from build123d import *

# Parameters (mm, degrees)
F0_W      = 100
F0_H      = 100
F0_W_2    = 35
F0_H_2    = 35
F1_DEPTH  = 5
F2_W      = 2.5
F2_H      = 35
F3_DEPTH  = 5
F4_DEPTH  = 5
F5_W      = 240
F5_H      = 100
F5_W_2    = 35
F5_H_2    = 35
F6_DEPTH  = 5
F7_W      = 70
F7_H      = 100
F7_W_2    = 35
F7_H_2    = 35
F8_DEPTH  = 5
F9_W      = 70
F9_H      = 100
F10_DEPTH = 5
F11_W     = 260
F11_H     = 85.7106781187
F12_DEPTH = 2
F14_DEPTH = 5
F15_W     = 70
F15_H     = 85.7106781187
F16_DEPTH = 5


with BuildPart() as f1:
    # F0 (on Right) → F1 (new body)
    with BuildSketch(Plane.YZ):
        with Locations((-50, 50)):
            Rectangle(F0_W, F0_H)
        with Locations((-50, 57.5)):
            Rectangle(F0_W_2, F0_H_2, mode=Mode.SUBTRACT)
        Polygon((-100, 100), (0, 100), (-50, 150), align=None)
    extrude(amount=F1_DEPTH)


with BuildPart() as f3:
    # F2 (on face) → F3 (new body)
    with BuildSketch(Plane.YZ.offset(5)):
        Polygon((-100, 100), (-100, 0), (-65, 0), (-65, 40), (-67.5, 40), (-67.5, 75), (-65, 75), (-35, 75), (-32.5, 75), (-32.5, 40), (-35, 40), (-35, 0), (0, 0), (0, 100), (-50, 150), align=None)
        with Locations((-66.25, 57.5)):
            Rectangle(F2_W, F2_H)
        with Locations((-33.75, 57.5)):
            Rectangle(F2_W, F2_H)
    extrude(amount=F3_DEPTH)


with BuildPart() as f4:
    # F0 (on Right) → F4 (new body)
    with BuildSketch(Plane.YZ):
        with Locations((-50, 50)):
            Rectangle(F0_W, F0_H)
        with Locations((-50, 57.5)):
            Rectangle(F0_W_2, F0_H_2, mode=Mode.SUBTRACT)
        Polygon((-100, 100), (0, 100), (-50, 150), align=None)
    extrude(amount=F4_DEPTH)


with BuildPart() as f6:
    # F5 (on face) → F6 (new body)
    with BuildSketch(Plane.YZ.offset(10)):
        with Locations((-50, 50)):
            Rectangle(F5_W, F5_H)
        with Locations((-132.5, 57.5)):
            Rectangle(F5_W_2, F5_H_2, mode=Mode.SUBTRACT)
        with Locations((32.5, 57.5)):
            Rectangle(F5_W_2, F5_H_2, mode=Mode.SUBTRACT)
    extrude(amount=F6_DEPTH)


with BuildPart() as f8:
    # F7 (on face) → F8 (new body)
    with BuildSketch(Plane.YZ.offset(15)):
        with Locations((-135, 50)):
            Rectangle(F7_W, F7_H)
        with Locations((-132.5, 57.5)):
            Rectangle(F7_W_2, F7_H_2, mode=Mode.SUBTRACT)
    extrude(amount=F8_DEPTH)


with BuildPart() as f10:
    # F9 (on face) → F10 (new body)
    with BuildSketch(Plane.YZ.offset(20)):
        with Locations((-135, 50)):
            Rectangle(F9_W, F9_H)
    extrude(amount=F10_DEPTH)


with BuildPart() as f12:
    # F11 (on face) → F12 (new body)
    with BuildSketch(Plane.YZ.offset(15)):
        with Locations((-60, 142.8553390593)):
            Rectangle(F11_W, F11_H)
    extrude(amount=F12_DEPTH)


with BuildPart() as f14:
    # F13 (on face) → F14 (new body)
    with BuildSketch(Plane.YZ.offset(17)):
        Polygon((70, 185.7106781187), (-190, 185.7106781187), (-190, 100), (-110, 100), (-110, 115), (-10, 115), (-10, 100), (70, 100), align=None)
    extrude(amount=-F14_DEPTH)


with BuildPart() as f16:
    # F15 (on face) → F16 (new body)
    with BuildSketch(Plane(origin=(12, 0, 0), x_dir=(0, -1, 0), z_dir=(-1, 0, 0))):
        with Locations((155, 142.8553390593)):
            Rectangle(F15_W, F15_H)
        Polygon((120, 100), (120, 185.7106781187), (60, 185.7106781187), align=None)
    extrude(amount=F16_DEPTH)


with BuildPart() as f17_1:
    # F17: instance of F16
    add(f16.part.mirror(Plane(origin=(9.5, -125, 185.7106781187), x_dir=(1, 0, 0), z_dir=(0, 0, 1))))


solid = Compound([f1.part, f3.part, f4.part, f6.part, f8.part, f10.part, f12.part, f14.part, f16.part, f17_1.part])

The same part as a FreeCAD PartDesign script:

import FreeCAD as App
import Part
import Sketcher

V = App.Vector
Q = App.Units.Quantity


def add_polygon(sketch, points):
    """Adds a closed chain of lines whose ends are joined by coincident constraints."""
    first, n = sketch.GeometryCount, len(points)
    for a, b in zip(points, points[1:] + points[:1]):
        sketch.addGeometry(Part.LineSegment(App.Vector(*a, 0), App.Vector(*b, 0)), False)
    for i in range(n):
        sketch.addConstraint(Sketcher.Constraint("Coincident", first + i, 2, first + (i + 1) % n, 1))

doc = App.newDocument("Part")
params = doc.addObject("Spreadsheet::Sheet", "Params")
for row, (alias, value) in enumerate([
    ("sketch1_width", "100 mm"),
    ("sketch1_width2", "35 mm"),
    ("pad1_length", "5 mm"),
    ("sketch2_width", "35 mm"),
    ("sketch2_width2", "30 mm"),
    ("sketch2_height", "100 mm"),
    ("sketch2_height2", "75 mm"),
    ("pad2_length", "5 mm"),
    ("sketch3_width", "100 mm"),
    ("sketch3_width2", "35 mm"),
    ("pad3_length", "5 mm"),
    ("sketch4_width", "240 mm"),
    ("sketch4_width2", "35 mm"),
    ("sketch4_height", "100 mm"),
    ("pad4_length", "5 mm"),
    ("sketch5_width", "70 mm"),
    ("sketch5_width2", "35 mm"),
    ("sketch5_height", "100 mm"),
    ("pad5_length", "5 mm"),
    ("sketch6_width", "70 mm"),
    ("sketch6_height", "100 mm"),
    ("pad6_length", "5 mm"),
    ("sketch7_width", "260 mm"),
    ("pad7_length", "2 mm"),
    ("sketch8_width", "260 mm"),
    ("sketch8_width2", "80 mm"),
    ("sketch8_height", "15 mm"),
    ("pad8_length", "5 mm"),
    ("sketch9_width", "70 mm"),
    ("sketch9_width2", "130 mm"),
    ("pad9_length", "5 mm"),
], start=1):
    params.set(f"A{row}", alias)
    params.set(f"B{row}", "=" + value)
    params.setAlias(f"B{row}", alias)

body = doc.addObject("PartDesign::Body", "Body")

sketch1 = doc.addObject("Sketcher::SketchObject", "Sketch")
body.addObject(sketch1)
sketch1.AttachmentSupport = (doc.YZ_Plane, [""])
sketch1.MapMode = "FlatFace"
add_polygon(sketch1, [(-100, 100), (-100, 0), (0, 0), (0, 100), (-50, 150)])
add_polygon(sketch1, [(-32, 40), (-68, 40), (-68, 75), (-32, 75)])
sketch1.addConstraint([
    Sketcher.Constraint("Vertical", 0),
    Sketcher.Constraint("Horizontal", 1),
    Sketcher.Constraint("Vertical", 2),
    Sketcher.Constraint("Horizontal", 5),
    Sketcher.Constraint("Vertical", 6),
    Sketcher.Constraint("Horizontal", 7),
    Sketcher.Constraint("Vertical", 8),
    Sketcher.Constraint("Coincident", 1, 2, -1, 1),
    Sketcher.Constraint("Perpendicular", 3, 4),
    Sketcher.Constraint("Horizontal", 2, 2, 4, 2),
    Sketcher.Constraint("Equal", 1, 0),
    Sketcher.Constraint("Equal", 7, 6),
    Sketcher.Constraint("Equal", 3, 4),
    Sketcher.Constraint("DistanceX", 1, 1, 1, 2, Q("100 mm")),
    Sketcher.Constraint("DistanceX", 5, 2, 5, 1, Q("35 mm")),
    Sketcher.Constraint("DistanceY", -1, 1, 5, 2, Q("40 mm")),
    Sketcher.Constraint("DistanceX", 5, 2, -1, 1, Q("67.5 mm")),
])
sketch1.setExpression("Constraints[22]", "Params.sketch1_width")
sketch1.setExpression("Constraints[23]", "Params.sketch1_width2")
pad1 = doc.addObject("PartDesign::Pad", "Pad")
body.addObject(pad1)
pad1.Profile = sketch1
pad1.setExpression("Length", "Params.pad1_length")
body2 = doc.addObject("PartDesign::Body", "Body001")

sketch2 = doc.addObject("Sketcher::SketchObject", "Sketch001")
body2.addObject(sketch2)
sketch2.AttachmentSupport = (doc.getObject("YZ_Plane001"), [""])
sketch2.MapMode = "FlatFace"
sketch2.AttachmentOffset = App.Placement(V(0, 0, 5), App.Rotation())
add_polygon(sketch2, [(-100, 100), (-100, 0), (-65, 0), (-65, 75), (-35, 75), (-35, 0), (0, 0), (0, 100), (-50, 150)])
sketch2.addConstraint([
    Sketcher.Constraint("Vertical", 0),
    Sketcher.Constraint("Horizontal", 1),
    Sketcher.Constraint("Vertical", 2),
    Sketcher.Constraint("Horizontal", 3),
    Sketcher.Constraint("Vertical", 4),
    Sketcher.Constraint("Horizontal", 5),
    Sketcher.Constraint("Vertical", 6),
    Sketcher.Constraint("Coincident", 5, 2, -1, 1),
    Sketcher.Constraint("PointOnObject", 0, 2, -1),
    Sketcher.Constraint("Perpendicular", 7, 8),
    Sketcher.Constraint("Horizontal", 6, 2, 8, 2),
    Sketcher.Constraint("Equal", 1, 5),
    Sketcher.Constraint("Equal", 7, 8),
    Sketcher.Constraint("DistanceX", 1, 1, 1, 2, Q("35 mm")),
    Sketcher.Constraint("DistanceX", 3, 1, 3, 2, Q("30 mm")),
    Sketcher.Constraint("DistanceY", 0, 2, 0, 1, Q("100 mm")),
    Sketcher.Constraint("DistanceY", 2, 1, 2, 2, Q("75 mm")),
])
sketch2.setExpression("Constraints[22]", "Params.sketch2_width")
sketch2.setExpression("Constraints[23]", "Params.sketch2_width2")
sketch2.setExpression("Constraints[24]", "Params.sketch2_height")
sketch2.setExpression("Constraints[25]", "Params.sketch2_height2")
pad2 = doc.addObject("PartDesign::Pad", "Pad001")
body2.addObject(pad2)
pad2.Profile = sketch2
pad2.setExpression("Length", "Params.pad2_length")
body3 = doc.addObject("PartDesign::Body", "Body002")

sketch3 = doc.addObject("Sketcher::SketchObject", "Sketch002")
body3.addObject(sketch3)
sketch3.AttachmentSupport = (doc.getObject("YZ_Plane002"), [""])
sketch3.MapMode = "FlatFace"
add_polygon(sketch3, [(-100, 100), (-100, 0), (0, 0), (0, 100), (-50, 150)])
add_polygon(sketch3, [(-32, 40), (-68, 40), (-68, 75), (-32, 75)])
sketch3.addConstraint([
    Sketcher.Constraint("Vertical", 0),
    Sketcher.Constraint("Horizontal", 1),
    Sketcher.Constraint("Vertical", 2),
    Sketcher.Constraint("Horizontal", 5),
    Sketcher.Constraint("Vertical", 6),
    Sketcher.Constraint("Horizontal", 7),
    Sketcher.Constraint("Vertical", 8),
    Sketcher.Constraint("Coincident", 1, 2, -1, 1),
    Sketcher.Constraint("Perpendicular", 3, 4),
    Sketcher.Constraint("Horizontal", 2, 2, 4, 2),
    Sketcher.Constraint("Equal", 1, 0),
    Sketcher.Constraint("Equal", 7, 6),
    Sketcher.Constraint("Equal", 3, 4),
    Sketcher.Constraint("DistanceX", 1, 1, 1, 2, Q("100 mm")),
    Sketcher.Constraint("DistanceX", 5, 2, 5, 1, Q("35 mm")),
    Sketcher.Constraint("DistanceY", -1, 1, 5, 2, Q("40 mm")),
    Sketcher.Constraint("DistanceX", 5, 2, -1, 1, Q("67.5 mm")),
])
sketch3.setExpression("Constraints[22]", "Params.sketch3_width")
sketch3.setExpression("Constraints[23]", "Params.sketch3_width2")
pad3 = doc.addObject("PartDesign::Pad", "Pad002")
body3.addObject(pad3)
pad3.Profile = sketch3
pad3.setExpression("Length", "Params.pad3_length")
body4 = doc.addObject("PartDesign::Body", "Body003")

sketch4 = doc.addObject("Sketcher::SketchObject", "Sketch003")
body4.addObject(sketch4)
sketch4.AttachmentSupport = (doc.getObject("YZ_Plane003"), [""])
sketch4.MapMode = "FlatFace"
sketch4.AttachmentOffset = App.Placement(V(0, 0, 10), App.Rotation())
add_polygon(sketch4, [(-170, 100), (-170, 0), (70, 0), (70, 100)])
add_polygon(sketch4, [(-115, 40), (-150, 40), (-150, 75), (-115, 75)])
add_polygon(sketch4, [(50, 40), (15, 40), (15, 75), (50, 75)])
sketch4.addConstraint([
    Sketcher.Constraint("Vertical", 0),
    Sketcher.Constraint("Horizontal", 1),
    Sketcher.Constraint("Vertical", 2),
    Sketcher.Constraint("Horizontal", 3),
    Sketcher.Constraint("Horizontal", 4),
    Sketcher.Constraint("Vertical", 5),
    Sketcher.Constraint("Horizontal", 6),
    Sketcher.Constraint("Vertical", 7),
    Sketcher.Constraint("Horizontal", 8),
    Sketcher.Constraint("Vertical", 9),
    Sketcher.Constraint("Horizontal", 10),
    Sketcher.Constraint("Vertical", 11),
    Sketcher.Constraint("PointOnObject", 0, 2, -1),
    Sketcher.Constraint("Horizontal", 7, 2, 8, 2),
    Sketcher.Constraint("Horizontal", 6, 2, 9, 2),
    Sketcher.Constraint("Equal", 6, 8),
    Sketcher.Constraint("Equal", 10, 5),
    Sketcher.Constraint("DistanceX", 1, 1, 1, 2, Q("240 mm")),
    Sketcher.Constraint("DistanceX", 4, 2, 4, 1, Q("35 mm")),
    Sketcher.Constraint("DistanceY", 0, 2, 0, 1, Q("100 mm")),
    Sketcher.Constraint("DistanceX", 0, 2, -1, 1, Q("170 mm")),
    Sketcher.Constraint("DistanceX", 4, 2, -1, 1, Q("150 mm")),
    Sketcher.Constraint("DistanceY", -1, 1, 4, 2, Q("40 mm")),
    Sketcher.Constraint("DistanceX", -1, 1, 8, 2, Q("15 mm")),
])
sketch4.setExpression("Constraints[29]", "Params.sketch4_width")
sketch4.setExpression("Constraints[30]", "Params.sketch4_width2")
sketch4.setExpression("Constraints[31]", "Params.sketch4_height")
pad4 = doc.addObject("PartDesign::Pad", "Pad003")
body4.addObject(pad4)
pad4.Profile = sketch4
pad4.setExpression("Length", "Params.pad4_length")
body5 = doc.addObject("PartDesign::Body", "Body004")

sketch5 = doc.addObject("Sketcher::SketchObject", "Sketch004")
body5.addObject(sketch5)
sketch5.AttachmentSupport = (doc.getObject("YZ_Plane004"), [""])
sketch5.MapMode = "FlatFace"
sketch5.AttachmentOffset = App.Placement(V(0, 0, 15), App.Rotation())
add_polygon(sketch5, [(-170, 100), (-170, 0), (-100, 0), (-100, 100)])
add_polygon(sketch5, [(-115, 40), (-150, 40), (-150, 75), (-115, 75)])
sketch5.addConstraint([
    Sketcher.Constraint("Vertical", 0),
    Sketcher.Constraint("Horizontal", 1),
    Sketcher.Constraint("Vertical", 2),
    Sketcher.Constraint("Horizontal", 3),
    Sketcher.Constraint("Horizontal", 4),
    Sketcher.Constraint("Vertical", 5),
    Sketcher.Constraint("Horizontal", 6),
    Sketcher.Constraint("Vertical", 7),
    Sketcher.Constraint("PointOnObject", 0, 2, -1),
    Sketcher.Constraint("Equal", 6, 5),
    Sketcher.Constraint("DistanceX", 1, 1, 1, 2, Q("70 mm")),
    Sketcher.Constraint("DistanceX", 4, 2, 4, 1, Q("35 mm")),
    Sketcher.Constraint("DistanceY", 0, 2, 0, 1, Q("100 mm")),
    Sketcher.Constraint("DistanceX", 0, 2, -1, 1, Q("170 mm")),
    Sketcher.Constraint("DistanceX", 4, 2, -1, 1, Q("150 mm")),
    Sketcher.Constraint("DistanceY", -1, 1, 4, 2, Q("40 mm")),
])
sketch5.setExpression("Constraints[18]", "Params.sketch5_width")
sketch5.setExpression("Constraints[19]", "Params.sketch5_width2")
sketch5.setExpression("Constraints[20]", "Params.sketch5_height")
pad5 = doc.addObject("PartDesign::Pad", "Pad004")
body5.addObject(pad5)
pad5.Profile = sketch5
pad5.setExpression("Length", "Params.pad5_length")
body6 = doc.addObject("PartDesign::Body", "Body005")

sketch6 = doc.addObject("Sketcher::SketchObject", "Sketch005")
body6.addObject(sketch6)
sketch6.AttachmentSupport = (doc.getObject("YZ_Plane005"), [""])
sketch6.MapMode = "FlatFace"
sketch6.AttachmentOffset = App.Placement(V(0, 0, 20), App.Rotation())
add_polygon(sketch6, [(-170, 100), (-170, 0), (-100, 0), (-100, 100)])
sketch6.addConstraint([
    Sketcher.Constraint("Vertical", 0),
    Sketcher.Constraint("Horizontal", 1),
    Sketcher.Constraint("Vertical", 2),
    Sketcher.Constraint("Horizontal", 3),
    Sketcher.Constraint("PointOnObject", 0, 2, -1),
    Sketcher.Constraint("DistanceX", 1, 1, 1, 2, Q("70 mm")),
    Sketcher.Constraint("DistanceY", 0, 2, 0, 1, Q("100 mm")),
    Sketcher.Constraint("DistanceX", 0, 2, -1, 1, Q("170 mm")),
])
sketch6.setExpression("Constraints[9]", "Params.sketch6_width")
sketch6.setExpression("Constraints[10]", "Params.sketch6_height")
pad6 = doc.addObject("PartDesign::Pad", "Pad005")
body6.addObject(pad6)
pad6.Profile = sketch6
pad6.setExpression("Length", "Params.pad6_length")
body7 = doc.addObject("PartDesign::Body", "Body006")

sketch7 = doc.addObject("Sketcher::SketchObject", "Sketch006")
body7.addObject(sketch7)
sketch7.AttachmentSupport = (doc.getObject("YZ_Plane006"), [""])
sketch7.MapMode = "FlatFace"
sketch7.AttachmentOffset = App.Placement(V(0, 0, 15), App.Rotation())
add_polygon(sketch7, [(-190, 186), (-190, 100), (70, 100), (70, 186)])
sketch7.addConstraint([
    Sketcher.Constraint("Vertical", 0),
    Sketcher.Constraint("Horizontal", 1),
    Sketcher.Constraint("Vertical", 2),
    Sketcher.Constraint("Horizontal", 3),
    Sketcher.Constraint("DistanceX", 1, 1, 1, 2, Q("260 mm")),
    Sketcher.Constraint("DistanceX", 0, 2, -1, 1, Q("190 mm")),
    Sketcher.Constraint("DistanceY", -1, 1, 0, 2, Q("100 mm")),
    Sketcher.Constraint("DistanceY", 0, 2, 0, 1, Q("85.710678 mm")),
])
sketch7.setExpression("Constraints[8]", "Params.sketch7_width")
pad7 = doc.addObject("PartDesign::Pad", "Pad006")
body7.addObject(pad7)
pad7.Profile = sketch7
pad7.setExpression("Length", "Params.pad7_length")
body8 = doc.addObject("PartDesign::Body", "Body007")

sketch8 = doc.addObject("Sketcher::SketchObject", "Sketch007")
body8.addObject(sketch8)
sketch8.AttachmentSupport = (doc.getObject("YZ_Plane007"), [""])
sketch8.MapMode = "FlatFace"
sketch8.AttachmentOffset = App.Placement(V(0, 0, 17), App.Rotation())
add_polygon(sketch8, [(70, 186), (-190, 186), (-190, 100), (-110, 100), (-110, 115), (-10, 115), (-10, 100), (70, 100)])
sketch8.addConstraint([
    Sketcher.Constraint("Horizontal", 0),
    Sketcher.Constraint("Vertical", 1),
    Sketcher.Constraint("Horizontal", 2),
    Sketcher.Constraint("Vertical", 3),
    Sketcher.Constraint("Horizontal", 4),
    Sketcher.Constraint("Vertical", 5),
    Sketcher.Constraint("Horizontal", 6),
    Sketcher.Constraint("Vertical", 7),
    Sketcher.Constraint("Horizontal", 2, 2, 5, 2),
    Sketcher.Constraint("Equal", 2, 6),
    Sketcher.Constraint("DistanceX", 0, 2, 0, 1, Q("260 mm")),
    Sketcher.Constraint("DistanceX", 2, 1, 2, 2, Q("80 mm")),
    Sketcher.Constraint("DistanceY", 3, 1, 3, 2, Q("15 mm")),
    Sketcher.Constraint("DistanceX", 0, 2, -1, 1, Q("190 mm")),
    Sketcher.Constraint("DistanceY", -1, 1, 1, 2, Q("100 mm")),
    Sketcher.Constraint("DistanceY", 1, 2, 1, 1, Q("85.710678 mm")),
])
sketch8.setExpression("Constraints[18]", "Params.sketch8_width")
sketch8.setExpression("Constraints[19]", "Params.sketch8_width2")
sketch8.setExpression("Constraints[20]", "Params.sketch8_height")
pad8 = doc.addObject("PartDesign::Pad", "Pad007")
body8.addObject(pad8)
pad8.Profile = sketch8
pad8.setExpression("Length", "Params.pad8_length")
pad8.Reversed = True
body9 = doc.addObject("PartDesign::Body", "Body008")

sketch9 = doc.addObject("Sketcher::SketchObject", "Sketch008")
body9.addObject(sketch9)
sketch9.AttachmentSupport = (doc.getObject("YZ_Plane008"), [""])
sketch9.MapMode = "FlatFace"
sketch9.AttachmentOffset = App.Placement(V(0, 0, 12), App.Rotation())
add_polygon(sketch9, [(-120, 100), (-190, 100), (-190, 186), (-60, 186)])
sketch9.addConstraint([
    Sketcher.Constraint("Horizontal", 0),
    Sketcher.Constraint("Vertical", 1),
    Sketcher.Constraint("Horizontal", 2),
    Sketcher.Constraint("DistanceX", 0, 2, 0, 1, Q("70 mm")),
    Sketcher.Constraint("DistanceX", 2, 1, 2, 2, Q("130 mm")),
    Sketcher.Constraint("DistanceX", 0, 2, -1, 1, Q("190 mm")),
    Sketcher.Constraint("DistanceY", -1, 1, 0, 2, Q("100 mm")),
    Sketcher.Constraint("DistanceY", 1, 1, 1, 2, Q("85.710678 mm")),
])
sketch9.setExpression("Constraints[7]", "Params.sketch9_width")
sketch9.setExpression("Constraints[8]", "Params.sketch9_width2")
pad9 = doc.addObject("PartDesign::Pad", "Pad008")
body9.addObject(pad9)
pad9.Profile = sketch9
pad9.setExpression("Length", "Params.pad9_length")
pad9.Reversed = True
body10 = doc.addObject("PartDesign::Body", "Body009")
doc.recompute()

mirroring = doc.addObject("Part::Mirroring", "Mirroring")
mirroring.Source = body9
mirroring.Base = V(9.5, -125, 185.710678)
mirroring.Normal = V(0, 0, 1)
body10.BaseFeature = mirroring
doc.recompute()
mirroring.Visibility = False

doc.recompute()
